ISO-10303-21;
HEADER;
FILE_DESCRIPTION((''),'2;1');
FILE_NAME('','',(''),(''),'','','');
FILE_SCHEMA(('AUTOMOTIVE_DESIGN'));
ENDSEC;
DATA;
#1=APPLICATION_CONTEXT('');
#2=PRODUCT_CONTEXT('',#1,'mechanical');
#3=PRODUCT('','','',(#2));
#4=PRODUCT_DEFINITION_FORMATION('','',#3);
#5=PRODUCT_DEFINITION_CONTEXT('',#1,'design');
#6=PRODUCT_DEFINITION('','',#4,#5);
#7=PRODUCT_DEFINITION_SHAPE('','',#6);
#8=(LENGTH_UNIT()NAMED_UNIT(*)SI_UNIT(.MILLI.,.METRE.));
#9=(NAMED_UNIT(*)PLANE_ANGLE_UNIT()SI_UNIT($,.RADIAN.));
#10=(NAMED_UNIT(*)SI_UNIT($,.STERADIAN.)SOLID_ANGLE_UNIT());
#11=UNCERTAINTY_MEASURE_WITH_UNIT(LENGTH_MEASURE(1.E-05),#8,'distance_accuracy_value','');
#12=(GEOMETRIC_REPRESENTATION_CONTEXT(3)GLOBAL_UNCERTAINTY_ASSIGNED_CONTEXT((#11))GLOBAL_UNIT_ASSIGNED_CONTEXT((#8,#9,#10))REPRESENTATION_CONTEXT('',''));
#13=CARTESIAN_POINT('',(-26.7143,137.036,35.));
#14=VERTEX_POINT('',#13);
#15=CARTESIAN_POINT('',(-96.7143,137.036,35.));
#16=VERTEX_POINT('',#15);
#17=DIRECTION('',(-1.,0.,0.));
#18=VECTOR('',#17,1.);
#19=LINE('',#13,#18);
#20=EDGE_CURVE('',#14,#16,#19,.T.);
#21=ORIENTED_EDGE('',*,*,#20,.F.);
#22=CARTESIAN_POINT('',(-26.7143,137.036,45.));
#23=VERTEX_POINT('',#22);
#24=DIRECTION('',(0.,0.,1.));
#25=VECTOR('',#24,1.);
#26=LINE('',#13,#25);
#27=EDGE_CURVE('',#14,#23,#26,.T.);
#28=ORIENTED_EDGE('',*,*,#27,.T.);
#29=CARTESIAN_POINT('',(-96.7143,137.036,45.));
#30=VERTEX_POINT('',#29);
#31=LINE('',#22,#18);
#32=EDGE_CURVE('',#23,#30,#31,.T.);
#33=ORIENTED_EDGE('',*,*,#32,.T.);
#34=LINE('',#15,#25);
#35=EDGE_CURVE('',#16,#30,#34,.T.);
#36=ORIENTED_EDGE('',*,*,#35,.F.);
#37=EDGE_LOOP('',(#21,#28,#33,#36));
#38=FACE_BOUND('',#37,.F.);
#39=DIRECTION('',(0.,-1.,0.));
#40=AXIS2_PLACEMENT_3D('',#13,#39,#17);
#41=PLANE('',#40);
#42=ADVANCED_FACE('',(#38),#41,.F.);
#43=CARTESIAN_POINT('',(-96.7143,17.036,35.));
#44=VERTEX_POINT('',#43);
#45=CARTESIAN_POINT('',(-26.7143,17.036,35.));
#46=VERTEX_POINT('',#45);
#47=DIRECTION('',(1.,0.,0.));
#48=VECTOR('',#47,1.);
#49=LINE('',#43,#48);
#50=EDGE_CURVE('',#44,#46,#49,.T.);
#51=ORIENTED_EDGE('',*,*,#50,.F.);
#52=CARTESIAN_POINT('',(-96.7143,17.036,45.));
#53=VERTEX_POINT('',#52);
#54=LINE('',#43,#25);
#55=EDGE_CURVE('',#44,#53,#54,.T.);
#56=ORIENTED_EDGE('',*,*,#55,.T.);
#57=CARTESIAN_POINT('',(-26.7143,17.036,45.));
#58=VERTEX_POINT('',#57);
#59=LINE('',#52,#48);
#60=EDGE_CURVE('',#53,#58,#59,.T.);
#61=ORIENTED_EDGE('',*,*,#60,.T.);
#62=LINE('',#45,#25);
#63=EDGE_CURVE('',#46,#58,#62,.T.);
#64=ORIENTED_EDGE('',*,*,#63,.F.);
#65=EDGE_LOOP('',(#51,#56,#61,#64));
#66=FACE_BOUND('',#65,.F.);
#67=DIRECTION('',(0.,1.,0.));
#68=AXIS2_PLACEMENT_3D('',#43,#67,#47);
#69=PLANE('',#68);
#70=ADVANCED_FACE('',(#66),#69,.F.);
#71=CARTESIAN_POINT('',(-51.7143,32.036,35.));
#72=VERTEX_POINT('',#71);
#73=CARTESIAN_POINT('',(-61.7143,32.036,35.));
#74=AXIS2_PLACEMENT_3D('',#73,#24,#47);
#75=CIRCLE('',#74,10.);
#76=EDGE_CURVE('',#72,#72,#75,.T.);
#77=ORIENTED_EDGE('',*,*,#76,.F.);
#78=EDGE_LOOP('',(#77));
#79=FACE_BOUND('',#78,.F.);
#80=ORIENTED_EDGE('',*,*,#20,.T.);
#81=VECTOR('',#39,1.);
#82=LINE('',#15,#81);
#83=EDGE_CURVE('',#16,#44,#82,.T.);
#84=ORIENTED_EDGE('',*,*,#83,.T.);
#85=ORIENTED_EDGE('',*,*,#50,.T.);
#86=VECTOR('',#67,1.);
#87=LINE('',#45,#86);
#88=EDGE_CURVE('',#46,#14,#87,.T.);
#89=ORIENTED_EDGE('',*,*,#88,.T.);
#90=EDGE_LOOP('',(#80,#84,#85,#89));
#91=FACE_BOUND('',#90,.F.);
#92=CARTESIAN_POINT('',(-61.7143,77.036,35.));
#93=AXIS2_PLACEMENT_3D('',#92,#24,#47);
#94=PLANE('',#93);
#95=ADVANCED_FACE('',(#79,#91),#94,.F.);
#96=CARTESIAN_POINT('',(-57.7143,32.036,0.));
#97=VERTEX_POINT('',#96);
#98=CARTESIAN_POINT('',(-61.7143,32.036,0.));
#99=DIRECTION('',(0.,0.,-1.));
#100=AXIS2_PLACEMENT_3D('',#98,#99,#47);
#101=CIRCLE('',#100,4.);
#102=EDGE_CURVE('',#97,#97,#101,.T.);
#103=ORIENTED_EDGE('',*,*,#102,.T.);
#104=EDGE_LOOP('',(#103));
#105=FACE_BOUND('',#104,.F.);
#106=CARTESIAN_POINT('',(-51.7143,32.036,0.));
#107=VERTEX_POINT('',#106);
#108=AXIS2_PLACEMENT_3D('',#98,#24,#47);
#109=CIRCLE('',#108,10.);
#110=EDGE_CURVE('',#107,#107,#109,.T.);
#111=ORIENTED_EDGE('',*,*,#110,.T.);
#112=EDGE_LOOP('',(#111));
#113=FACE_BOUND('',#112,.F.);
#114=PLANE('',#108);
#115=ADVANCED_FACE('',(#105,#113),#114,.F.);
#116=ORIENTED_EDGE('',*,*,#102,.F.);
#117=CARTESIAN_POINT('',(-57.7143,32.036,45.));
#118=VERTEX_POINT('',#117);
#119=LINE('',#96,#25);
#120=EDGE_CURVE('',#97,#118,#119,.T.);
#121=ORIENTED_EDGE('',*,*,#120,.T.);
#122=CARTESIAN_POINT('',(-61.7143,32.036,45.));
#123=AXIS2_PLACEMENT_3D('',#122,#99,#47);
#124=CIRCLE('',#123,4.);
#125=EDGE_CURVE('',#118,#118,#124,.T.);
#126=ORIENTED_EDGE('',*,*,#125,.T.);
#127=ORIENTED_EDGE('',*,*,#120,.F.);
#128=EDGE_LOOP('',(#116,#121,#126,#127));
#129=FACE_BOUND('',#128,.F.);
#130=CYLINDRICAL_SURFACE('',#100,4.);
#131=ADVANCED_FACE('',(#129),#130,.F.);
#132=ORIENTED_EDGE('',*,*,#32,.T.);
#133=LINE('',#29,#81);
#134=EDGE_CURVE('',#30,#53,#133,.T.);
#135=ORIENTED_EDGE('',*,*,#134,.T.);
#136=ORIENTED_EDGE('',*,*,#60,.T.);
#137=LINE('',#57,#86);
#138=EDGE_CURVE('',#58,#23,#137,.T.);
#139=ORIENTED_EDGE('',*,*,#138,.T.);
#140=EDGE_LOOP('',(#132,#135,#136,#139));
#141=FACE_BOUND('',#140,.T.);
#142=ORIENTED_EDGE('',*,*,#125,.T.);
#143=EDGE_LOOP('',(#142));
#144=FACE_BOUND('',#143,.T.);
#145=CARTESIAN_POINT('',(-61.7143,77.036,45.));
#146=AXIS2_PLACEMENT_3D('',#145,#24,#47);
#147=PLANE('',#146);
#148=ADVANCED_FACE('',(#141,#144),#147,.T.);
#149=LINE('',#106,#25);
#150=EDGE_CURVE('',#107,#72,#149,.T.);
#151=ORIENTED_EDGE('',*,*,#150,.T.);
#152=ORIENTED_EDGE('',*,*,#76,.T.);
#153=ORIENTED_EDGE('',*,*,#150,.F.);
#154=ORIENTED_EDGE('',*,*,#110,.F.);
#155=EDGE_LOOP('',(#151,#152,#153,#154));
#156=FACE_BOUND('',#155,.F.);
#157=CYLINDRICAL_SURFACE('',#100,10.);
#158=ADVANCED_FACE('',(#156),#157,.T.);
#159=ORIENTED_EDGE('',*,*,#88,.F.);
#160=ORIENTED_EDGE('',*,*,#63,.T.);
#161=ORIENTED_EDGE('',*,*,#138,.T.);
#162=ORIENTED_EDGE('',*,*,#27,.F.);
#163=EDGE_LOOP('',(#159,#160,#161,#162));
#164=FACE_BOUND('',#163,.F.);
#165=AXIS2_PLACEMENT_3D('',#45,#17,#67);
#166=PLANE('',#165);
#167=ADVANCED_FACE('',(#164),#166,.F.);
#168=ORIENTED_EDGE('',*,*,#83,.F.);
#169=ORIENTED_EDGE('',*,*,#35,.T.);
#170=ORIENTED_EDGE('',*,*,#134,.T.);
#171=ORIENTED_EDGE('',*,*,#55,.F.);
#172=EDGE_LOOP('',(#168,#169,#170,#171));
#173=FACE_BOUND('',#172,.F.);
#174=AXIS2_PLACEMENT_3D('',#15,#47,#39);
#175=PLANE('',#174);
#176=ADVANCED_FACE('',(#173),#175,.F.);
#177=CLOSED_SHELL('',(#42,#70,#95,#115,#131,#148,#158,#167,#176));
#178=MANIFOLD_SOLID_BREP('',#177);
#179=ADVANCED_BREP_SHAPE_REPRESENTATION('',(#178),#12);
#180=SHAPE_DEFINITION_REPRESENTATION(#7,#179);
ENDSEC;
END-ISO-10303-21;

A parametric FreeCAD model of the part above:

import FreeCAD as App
import Part
import Sketcher
from FreeCAD import Vector
Q = App.Units.Quantity


def add_polygon(sketch, points):
    """Adds a closed chain of lines whose ends are joined by coincident constraints."""
    first, n = sketch.GeometryCount, len(points)
    for a, b in zip(points, points[1:] + points[:1]):
        sketch.addGeometry(Part.LineSegment(App.Vector(*a, 0), App.Vector(*b, 0)), False)
    for i in range(n):
        sketch.addConstraint(Sketcher.Constraint("Coincident", first + i, 2, first + (i + 1) % n, 1))

doc = App.newDocument("Part")
params = doc.addObject("Spreadsheet::Sheet", "Params")
for row, (alias, value) in enumerate([
    ("sketch1_diameter", "20 mm"),
    ("pad1_length", "35 mm"),
    ("sketch2_width", "70 mm"),
    ("sketch2_height", "120 mm"),
    ("pad2_length", "10 mm"),
    ("sketch3_diameter", "8 mm"),
], start=1):
    params.set(f"A{row}", alias)
    params.set(f"B{row}", "=" + value)
    params.setAlias(f"B{row}", alias)

body = doc.addObject("PartDesign::Body", "Body")

# Sketch on XY plane
sketch1 = doc.addObject("Sketcher::SketchObject", "Sketch")
body.addObject(sketch1)
sketch1.AttachmentSupport = (doc.XY_Plane, [""])
sketch1.MapMode = "FlatFace"
sketch1.addGeometry(Part.Circle(Vector(-62, 32, 0), Vector(0, 0, 1), 10), False)
sketch1.addConstraint(Sketcher.Constraint("Diameter", 0, Q("20 mm")))
sketch1.addConstraint(Sketcher.Constraint("DistanceY", -1, 1, 0, 3, Q("32.036 mm")))
sketch1.addConstraint(Sketcher.Constraint("DistanceX", 0, 3, -1, 1, Q("61.7143 mm")))
sketch1.setExpression("Constraints[0]", "Params.sketch1_diameter")
pad1 = doc.addObject("PartDesign::Pad", "Pad")
body.addObject(pad1)
pad1.Profile = sketch1
pad1.setExpression("Length", "Params.pad1_length")

# Sketch on XY plane
sketch2 = doc.addObject("Sketcher::SketchObject", "Sketch001")
body.addObject(sketch2)
sketch2.AttachmentSupport = (doc.XY_Plane, [""])
sketch2.MapMode = "FlatFace"
sketch2.AttachmentOffset = App.Placement(Vector(0, 0, 35), App.Rotation())
add_polygon(sketch2, [(-97, 137), (-97, 17), (-27, 17), (-27, 137)])  # lines 0-3
sketch2.addConstraint(Sketcher.Constraint("Vertical", 0))
sketch2.addConstraint(Sketcher.Constraint("Horizontal", 1))
sketch2.addConstraint(Sketcher.Constraint("Vertical", 2))
sketch2.addConstraint(Sketcher.Constraint("Horizontal", 3))
sketch2.addConstraint(Sketcher.Constraint("DistanceX", 1, 1, 1, 2, Q("70 mm")))
sketch2.addConstraint(Sketcher.Constraint("DistanceY", 0, 2, 0, 1, Q("120 mm")))
sketch2.addConstraint(Sketcher.Constraint("DistanceY", -1, 1, 0, 2, Q("17.036 mm")))
sketch2.addConstraint(Sketcher.Constraint("DistanceX", 0, 2, -1, 1, Q("96.7143 mm")))
sketch2.setExpression("Constraints[8]", "Params.sketch2_width")
sketch2.setExpression("Constraints[9]", "Params.sketch2_height")
pad2 = doc.addObject("PartDesign::Pad", "Pad001")
body.addObject(pad2)
pad2.Profile = sketch2
pad2.setExpression("Length", "Params.pad2_length")

# Sketch on XY plane
sketch3 = doc.addObject("Sketcher::SketchObject", "Sketch002")
body.addObject(sketch3)
sketch3.AttachmentSupport = (doc.XY_Plane, [""])
sketch3.MapMode = "FlatFace"
sketch3.addGeometry(Part.Circle(Vector(-61.7, 32, 0), Vector(0, 0, 1), 4), False)
sketch3.addConstraint(Sketcher.Constraint("Diameter", 0, Q("8 mm")))
sketch3.addConstraint(Sketcher.Constraint("DistanceY", -1, 1, 0, 3, Q("32.036 mm")))
sketch3.addConstraint(Sketcher.Constraint("DistanceX", 0, 3, -1, 1, Q("61.7143 mm")))
sketch3.setExpression("Constraints[0]", "Params.sketch3_diameter")
pocket1 = doc.addObject("PartDesign::Pocket", "Pocket")
body.addObject(pocket1)
pocket1.Profile = sketch3
pocket1.Type = "ThroughAll"
pocket1.Reversed = True

doc.recompute()
